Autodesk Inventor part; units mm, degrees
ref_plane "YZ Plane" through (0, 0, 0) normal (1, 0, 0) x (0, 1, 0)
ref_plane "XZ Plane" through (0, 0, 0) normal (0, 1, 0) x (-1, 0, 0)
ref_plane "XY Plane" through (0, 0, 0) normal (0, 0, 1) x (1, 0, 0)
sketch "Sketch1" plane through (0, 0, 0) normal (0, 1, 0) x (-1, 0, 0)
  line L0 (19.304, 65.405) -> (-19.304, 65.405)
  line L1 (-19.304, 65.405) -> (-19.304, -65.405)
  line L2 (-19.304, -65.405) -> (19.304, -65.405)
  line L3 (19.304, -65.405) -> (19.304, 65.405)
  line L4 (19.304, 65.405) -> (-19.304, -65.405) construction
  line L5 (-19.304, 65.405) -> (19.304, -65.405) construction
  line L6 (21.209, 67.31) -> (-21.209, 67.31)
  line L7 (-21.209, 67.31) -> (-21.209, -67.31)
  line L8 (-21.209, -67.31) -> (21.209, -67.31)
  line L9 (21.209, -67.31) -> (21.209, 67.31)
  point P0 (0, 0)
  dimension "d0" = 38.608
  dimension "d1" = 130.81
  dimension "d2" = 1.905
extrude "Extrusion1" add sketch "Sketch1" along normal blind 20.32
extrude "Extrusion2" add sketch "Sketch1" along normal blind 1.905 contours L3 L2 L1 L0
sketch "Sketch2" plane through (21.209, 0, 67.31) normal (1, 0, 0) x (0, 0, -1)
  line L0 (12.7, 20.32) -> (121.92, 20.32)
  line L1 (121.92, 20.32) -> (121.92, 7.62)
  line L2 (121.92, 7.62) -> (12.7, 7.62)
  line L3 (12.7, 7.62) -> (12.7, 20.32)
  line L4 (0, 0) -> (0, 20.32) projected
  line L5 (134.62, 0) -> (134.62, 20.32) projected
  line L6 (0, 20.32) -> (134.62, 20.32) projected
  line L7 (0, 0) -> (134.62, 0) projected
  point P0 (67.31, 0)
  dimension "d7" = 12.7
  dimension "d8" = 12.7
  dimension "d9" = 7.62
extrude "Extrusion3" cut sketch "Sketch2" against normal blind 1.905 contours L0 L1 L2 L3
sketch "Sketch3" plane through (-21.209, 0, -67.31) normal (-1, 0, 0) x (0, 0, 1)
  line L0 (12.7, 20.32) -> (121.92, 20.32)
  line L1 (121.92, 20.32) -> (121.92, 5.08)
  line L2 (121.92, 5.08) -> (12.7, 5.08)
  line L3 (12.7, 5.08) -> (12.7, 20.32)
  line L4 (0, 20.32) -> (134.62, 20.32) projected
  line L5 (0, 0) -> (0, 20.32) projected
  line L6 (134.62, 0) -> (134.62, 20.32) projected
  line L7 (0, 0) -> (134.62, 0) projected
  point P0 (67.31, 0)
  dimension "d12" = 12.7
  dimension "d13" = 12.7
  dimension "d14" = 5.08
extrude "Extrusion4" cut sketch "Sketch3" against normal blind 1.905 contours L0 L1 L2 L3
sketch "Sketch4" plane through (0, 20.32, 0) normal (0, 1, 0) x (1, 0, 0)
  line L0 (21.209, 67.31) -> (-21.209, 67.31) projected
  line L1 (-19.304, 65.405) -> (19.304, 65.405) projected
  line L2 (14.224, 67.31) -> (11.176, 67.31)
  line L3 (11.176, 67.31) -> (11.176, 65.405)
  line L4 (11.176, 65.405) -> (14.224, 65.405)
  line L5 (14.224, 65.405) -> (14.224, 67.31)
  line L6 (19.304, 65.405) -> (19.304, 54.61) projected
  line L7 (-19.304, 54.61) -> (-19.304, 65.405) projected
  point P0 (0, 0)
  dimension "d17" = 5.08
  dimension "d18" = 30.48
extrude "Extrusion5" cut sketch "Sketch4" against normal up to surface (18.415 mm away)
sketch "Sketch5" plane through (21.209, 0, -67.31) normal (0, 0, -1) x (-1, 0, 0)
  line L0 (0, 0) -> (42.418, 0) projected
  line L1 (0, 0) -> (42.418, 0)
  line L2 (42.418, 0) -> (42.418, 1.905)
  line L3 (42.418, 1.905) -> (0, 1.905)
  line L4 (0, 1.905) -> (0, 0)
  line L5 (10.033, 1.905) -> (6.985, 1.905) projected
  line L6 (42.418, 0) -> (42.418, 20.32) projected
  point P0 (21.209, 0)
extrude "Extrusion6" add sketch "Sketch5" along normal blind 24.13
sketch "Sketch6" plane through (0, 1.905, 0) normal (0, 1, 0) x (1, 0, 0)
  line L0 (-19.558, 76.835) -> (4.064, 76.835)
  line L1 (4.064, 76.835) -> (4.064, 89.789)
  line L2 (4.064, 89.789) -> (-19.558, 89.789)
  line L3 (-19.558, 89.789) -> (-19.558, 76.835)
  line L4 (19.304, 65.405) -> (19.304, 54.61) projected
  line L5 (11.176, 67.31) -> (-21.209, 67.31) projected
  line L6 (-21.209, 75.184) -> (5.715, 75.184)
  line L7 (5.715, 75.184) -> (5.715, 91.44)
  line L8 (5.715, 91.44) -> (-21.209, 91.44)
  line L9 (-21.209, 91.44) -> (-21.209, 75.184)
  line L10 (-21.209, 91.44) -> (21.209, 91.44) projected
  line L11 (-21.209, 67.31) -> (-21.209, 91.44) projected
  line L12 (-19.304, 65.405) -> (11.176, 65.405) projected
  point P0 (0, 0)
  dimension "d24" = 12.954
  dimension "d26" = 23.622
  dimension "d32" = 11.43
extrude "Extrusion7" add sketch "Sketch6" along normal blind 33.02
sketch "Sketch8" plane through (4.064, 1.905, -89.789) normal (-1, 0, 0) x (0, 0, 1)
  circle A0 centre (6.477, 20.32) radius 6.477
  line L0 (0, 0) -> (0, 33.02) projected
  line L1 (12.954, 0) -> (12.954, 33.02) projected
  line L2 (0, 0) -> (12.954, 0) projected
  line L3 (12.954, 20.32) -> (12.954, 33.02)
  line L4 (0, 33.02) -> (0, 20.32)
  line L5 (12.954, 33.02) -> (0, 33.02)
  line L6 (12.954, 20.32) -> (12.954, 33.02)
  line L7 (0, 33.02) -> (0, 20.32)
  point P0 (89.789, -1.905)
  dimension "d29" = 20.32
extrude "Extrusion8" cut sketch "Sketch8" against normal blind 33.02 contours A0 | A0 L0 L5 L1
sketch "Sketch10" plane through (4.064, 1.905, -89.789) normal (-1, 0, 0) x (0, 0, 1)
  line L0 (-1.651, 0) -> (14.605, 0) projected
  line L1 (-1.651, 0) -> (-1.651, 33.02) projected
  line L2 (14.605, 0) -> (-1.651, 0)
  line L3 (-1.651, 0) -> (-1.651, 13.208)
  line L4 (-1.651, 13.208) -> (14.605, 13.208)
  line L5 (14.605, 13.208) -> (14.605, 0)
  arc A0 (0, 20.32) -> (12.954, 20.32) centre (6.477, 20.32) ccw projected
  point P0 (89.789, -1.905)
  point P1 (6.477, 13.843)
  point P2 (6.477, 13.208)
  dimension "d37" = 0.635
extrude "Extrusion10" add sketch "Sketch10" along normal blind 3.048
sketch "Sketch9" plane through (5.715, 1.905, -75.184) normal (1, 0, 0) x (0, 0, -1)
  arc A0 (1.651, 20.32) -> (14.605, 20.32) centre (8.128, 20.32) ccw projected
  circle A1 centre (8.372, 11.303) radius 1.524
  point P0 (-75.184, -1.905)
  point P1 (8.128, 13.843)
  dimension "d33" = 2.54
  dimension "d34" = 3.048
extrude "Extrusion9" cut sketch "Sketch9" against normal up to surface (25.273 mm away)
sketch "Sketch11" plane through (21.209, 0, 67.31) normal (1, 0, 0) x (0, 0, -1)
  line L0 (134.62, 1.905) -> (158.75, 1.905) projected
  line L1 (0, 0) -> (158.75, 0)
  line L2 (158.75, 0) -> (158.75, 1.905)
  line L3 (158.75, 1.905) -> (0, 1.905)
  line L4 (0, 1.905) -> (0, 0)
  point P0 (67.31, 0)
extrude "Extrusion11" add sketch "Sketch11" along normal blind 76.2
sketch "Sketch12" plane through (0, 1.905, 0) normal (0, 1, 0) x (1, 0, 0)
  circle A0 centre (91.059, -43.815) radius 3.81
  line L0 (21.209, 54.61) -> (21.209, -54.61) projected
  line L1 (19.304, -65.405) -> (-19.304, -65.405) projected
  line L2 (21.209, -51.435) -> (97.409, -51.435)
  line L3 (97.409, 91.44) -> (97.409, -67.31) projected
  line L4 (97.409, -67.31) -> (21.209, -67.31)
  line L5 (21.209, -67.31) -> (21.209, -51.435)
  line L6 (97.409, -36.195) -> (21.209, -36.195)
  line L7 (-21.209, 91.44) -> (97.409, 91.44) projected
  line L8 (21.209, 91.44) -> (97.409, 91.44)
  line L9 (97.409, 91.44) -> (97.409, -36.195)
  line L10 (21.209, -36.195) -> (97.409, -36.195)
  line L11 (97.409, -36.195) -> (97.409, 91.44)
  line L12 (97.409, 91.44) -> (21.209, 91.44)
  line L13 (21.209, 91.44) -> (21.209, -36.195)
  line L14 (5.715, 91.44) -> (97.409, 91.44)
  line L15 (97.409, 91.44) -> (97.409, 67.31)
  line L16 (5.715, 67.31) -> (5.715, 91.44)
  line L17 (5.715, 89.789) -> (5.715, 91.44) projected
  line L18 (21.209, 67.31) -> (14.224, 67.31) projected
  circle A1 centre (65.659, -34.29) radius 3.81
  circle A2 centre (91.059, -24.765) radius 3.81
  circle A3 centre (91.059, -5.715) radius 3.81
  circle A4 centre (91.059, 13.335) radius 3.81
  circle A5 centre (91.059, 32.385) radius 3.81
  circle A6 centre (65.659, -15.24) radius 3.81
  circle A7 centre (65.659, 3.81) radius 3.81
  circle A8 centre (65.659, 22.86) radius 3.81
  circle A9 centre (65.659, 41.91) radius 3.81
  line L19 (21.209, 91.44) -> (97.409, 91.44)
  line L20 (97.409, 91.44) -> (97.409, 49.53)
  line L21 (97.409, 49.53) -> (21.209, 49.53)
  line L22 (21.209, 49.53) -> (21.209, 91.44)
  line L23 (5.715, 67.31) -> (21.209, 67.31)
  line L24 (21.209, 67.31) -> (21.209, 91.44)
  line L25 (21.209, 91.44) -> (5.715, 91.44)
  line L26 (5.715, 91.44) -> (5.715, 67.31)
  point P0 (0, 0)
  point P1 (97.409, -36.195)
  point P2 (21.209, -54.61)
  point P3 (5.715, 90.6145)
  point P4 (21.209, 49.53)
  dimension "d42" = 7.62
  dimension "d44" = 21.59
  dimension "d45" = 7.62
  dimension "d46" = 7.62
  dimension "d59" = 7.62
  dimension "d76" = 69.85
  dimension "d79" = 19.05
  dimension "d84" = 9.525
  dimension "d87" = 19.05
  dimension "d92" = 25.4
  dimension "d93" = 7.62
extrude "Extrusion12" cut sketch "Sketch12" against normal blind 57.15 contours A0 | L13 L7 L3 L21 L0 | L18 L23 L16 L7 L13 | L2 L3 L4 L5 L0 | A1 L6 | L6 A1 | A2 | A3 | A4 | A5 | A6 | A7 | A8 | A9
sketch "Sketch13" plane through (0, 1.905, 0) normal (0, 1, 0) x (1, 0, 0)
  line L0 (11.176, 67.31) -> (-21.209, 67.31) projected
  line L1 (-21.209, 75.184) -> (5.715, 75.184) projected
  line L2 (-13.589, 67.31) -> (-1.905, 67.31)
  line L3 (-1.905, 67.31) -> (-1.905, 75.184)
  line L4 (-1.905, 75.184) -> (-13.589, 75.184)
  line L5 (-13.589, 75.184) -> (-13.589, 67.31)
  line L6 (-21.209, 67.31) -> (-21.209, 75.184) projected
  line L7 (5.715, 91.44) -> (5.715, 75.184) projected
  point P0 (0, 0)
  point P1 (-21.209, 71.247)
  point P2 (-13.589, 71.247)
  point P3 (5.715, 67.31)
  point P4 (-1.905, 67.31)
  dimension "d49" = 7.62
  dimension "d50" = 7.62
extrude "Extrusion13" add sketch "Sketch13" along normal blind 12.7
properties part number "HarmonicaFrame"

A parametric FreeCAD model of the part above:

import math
import FreeCAD as App
import Part
import Sketcher

V = App.Vector
Q = App.Units.Quantity


def add_polygon(sketch, points):
    """Adds a closed chain of lines whose ends are joined by coincident constraints."""
    first, n = sketch.GeometryCount, len(points)
    for a, b in zip(points, points[1:] + points[:1]):
        sketch.addGeometry(Part.LineSegment(App.Vector(*a, 0), App.Vector(*b, 0)), False)
    for i in range(n):
        sketch.addConstraint(Sketcher.Constraint("Coincident", first + i, 2, first + (i + 1) % n, 1))

doc = App.newDocument("Part")
body = doc.addObject("PartDesign::Body", "Body")

# Sketch on XZ plane
sketch1 = body.newObject("Sketcher::SketchObject", "Sketch")
sketch1.AttachmentSupport = (doc.getObject("XZ_Plane"), [""])
sketch1.MapMode = "FlatFace"
add_polygon(sketch1, [(-21, -67), (-21, 67), (21, 67), (21, -67)])  # lines 0-3
add_polygon(sketch1, [(19, 65), (-19, 65), (-19, -65), (19, -65)])  # lines 4-7
sketch1.addConstraint(Sketcher.Constraint("Vertical", 0))
sketch1.addConstraint(Sketcher.Constraint("Horizontal", 1))
sketch1.addConstraint(Sketcher.Constraint("Vertical", 2))
sketch1.addConstraint(Sketcher.Constraint("Horizontal", 3))
sketch1.addConstraint(Sketcher.Constraint("Horizontal", 4))
sketch1.addConstraint(Sketcher.Constraint("Vertical", 5))
sketch1.addConstraint(Sketcher.Constraint("Horizontal", 6))
sketch1.addConstraint(Sketcher.Constraint("Vertical", 7))
sketch1.addConstraint(Sketcher.Constraint("Symmetric", 0, 2, 2, 2, -1, 1))
sketch1.addConstraint(Sketcher.Constraint("Symmetric", 4, 2, 6, 2, -1, 1))
sketch1.addConstraint(Sketcher.Constraint("DistanceX", 4, 2, 4, 1, Q("1.52 in")))
sketch1.addConstraint(Sketcher.Constraint("DistanceY", 5, 2, 5, 1, Q("5.15 in")))
sketch1.addConstraint(Sketcher.Constraint("DistanceY", 0, 1, 0, 2, Q("5.3 in")))
sketch1.addConstraint(Sketcher.Constraint("DistanceX", 0, 2, 4, 2, Q("0.075 in")))
pad1 = body.newObject("PartDesign::Pad", "Pad")
pad1.Profile = sketch1
pad1.Length = Q("0.8 in")
pad1.Reversed = True

# Sketch on XZ plane
sketch2 = body.newObject("Sketcher::SketchObject", "Sketch001")
sketch2.AttachmentSupport = (doc.getObject("XZ_Plane"), [""])
sketch2.MapMode = "FlatFace"
add_polygon(sketch2, [(-19, -65), (-19, 65), (19, 65), (19, -65)])  # lines 0-3
sketch2.addConstraint(Sketcher.Constraint("Vertical", 0))
sketch2.addConstraint(Sketcher.Constraint("Horizontal", 1))
sketch2.addConstraint(Sketcher.Constraint("Vertical", 2))
sketch2.addConstraint(Sketcher.Constraint("Horizontal", 3))
sketch2.addConstraint(Sketcher.Constraint("Symmetric", 0, 2, 2, 2, -1, 1))
sketch2.addConstraint(Sketcher.Constraint("DistanceX", 1, 1, 1, 2, Q("1.52 in")))
sketch2.addConstraint(Sketcher.Constraint("DistanceY", 0, 1, 0, 2, Q("5.15 in")))
pad2 = body.newObject("PartDesign::Pad", "Pad001")
pad2.Profile = sketch2
pad2.Length = Q("0.075 in")
pad2.Reversed = True

# Sketch on YZ plane
sketch3 = body.newObject("Sketcher::SketchObject", "Sketch002")
sketch3.AttachmentSupport = (doc.getObject("YZ_Plane"), [""])
sketch3.MapMode = "FlatFace"
sketch3.AttachmentOffset = App.Placement(V(0, 0, 0.835 * 25.4), App.Rotation())
add_polygon(sketch3, [(20, -55), (20, 55), (8, 55), (8, -55)])  # lines 0-3
sketch3.addConstraint(Sketcher.Constraint("Vertical", 0))
sketch3.addConstraint(Sketcher.Constraint("Horizontal", 1))
sketch3.addConstraint(Sketcher.Constraint("Vertical", 2))
sketch3.addConstraint(Sketcher.Constraint("Horizontal", 3))
sketch3.addConstraint(Sketcher.Constraint("DistanceX", 1, 2, 1, 1, Q("0.5 in")))
sketch3.addConstraint(Sketcher.Constraint("DistanceX", -1, 1, 1, 2, Q("0.3 in")))
sketch3.addConstraint(Sketcher.Constraint("DistanceY", 0, 1, 0, 2, Q("4.3 in")))
sketch3.addConstraint(Sketcher.Constraint("DistanceY", -1, 1, 0, 2, Q("2.15 in")))
pocket1 = body.newObject("PartDesign::Pocket", "Pocket")
pocket1.Profile = sketch3
pocket1.Length = Q("0.075 in")

# Sketch on YZ plane
sketch4 = body.newObject("Sketcher::SketchObject", "Sketch003")
sketch4.AttachmentSupport = (doc.getObject("YZ_Plane"), [""])
sketch4.MapMode = "FlatFace"
sketch4.AttachmentOffset = App.Placement(V(0, 0, -0.835 * 25.4), App.Rotation())
add_polygon(sketch4, [(20, 55), (20, -55), (5, -55), (5, 55)])  # lines 0-3
sketch4.addConstraint(Sketcher.Constraint("Vertical", 0))
sketch4.addConstraint(Sketcher.Constraint("Horizontal", 1))
sketch4.addConstraint(Sketcher.Constraint("Vertical", 2))
sketch4.addConstraint(Sketcher.Constraint("Horizontal", 3))
sketch4.addConstraint(Sketcher.Constraint("DistanceX", -1, 1, 1, 2, Q("0.2 in")))
sketch4.addConstraint(Sketcher.Constraint("DistanceX", 1, 2, 1, 1, Q("0.6 in")))
sketch4.addConstraint(Sketcher.Constraint("DistanceY", 0, 2, 0, 1, Q("4.3 in")))
sketch4.addConstraint(Sketcher.Constraint("DistanceY", 0, 2, -1, 1, Q("2.15 in")))
pocket2 = body.newObject("PartDesign::Pocket", "Pocket001")
pocket2.Profile = sketch4
pocket2.Length = Q("0.075 in")
pocket2.Reversed = True

# Sketch on XZ plane
sketch5 = body.newObject("Sketcher::SketchObject", "Sketch004")
sketch5.AttachmentSupport = (doc.getObject("XZ_Plane"), [""])
sketch5.MapMode = "FlatFace"
sketch5.AttachmentOffset = App.Placement(V(0, 0, -0.8 * 25.4), App.Rotation())
add_polygon(sketch5, [(14.2, -65.4), (14.2, -67.3), (11.2, -67.3), (11.2, -65.4)])  # lines 0-3
sketch5.addConstraint(Sketcher.Constraint("Vertical", 0))
sketch5.addConstraint(Sketcher.Constraint("Horizontal", 1))
sketch5.addConstraint(Sketcher.Constraint("Vertical", 2))
sketch5.addConstraint(Sketcher.Constraint("Horizontal", 3))
sketch5.addConstraint(Sketcher.Constraint("DistanceX", 1, 2, 1, 1, Q("0.12 in")))
sketch5.addConstraint(Sketcher.Constraint("DistanceY", 0, 2, 0, 1, Q("0.075 in")))
sketch5.addConstraint(Sketcher.Constraint("DistanceX", -1, 1, 0, 2, Q("0.56 in")))
sketch5.addConstraint(Sketcher.Constraint("DistanceY", 0, 2, -1, 1, Q("2.65 in")))
pocket3 = body.newObject("PartDesign::Pocket", "Pocket002")
pocket3.Profile = sketch5
pocket3.Length = Q("0.725 in")
pocket3.Reversed = True

# Sketch on XY plane
sketch6 = body.newObject("Sketcher::SketchObject", "Sketch005")
sketch6.AttachmentSupport = (doc.getObject("XY_Plane"), [""])
sketch6.MapMode = "FlatFace"
sketch6.AttachmentOffset = App.Placement(V(0, 0, -2.65 * 25.4), App.Rotation())
add_polygon(sketch6, [(21.2, 1.9), (21.2, 0), (-21.2, 0), (-21.2, 1.9)])  # lines 0-3
sketch6.addConstraint(Sketcher.Constraint("Vertical", 0))
sketch6.addConstraint(Sketcher.Constraint("Horizontal", 1))
sketch6.addConstraint(Sketcher.Constraint("Vertical", 2))
sketch6.addConstraint(Sketcher.Constraint("Horizontal", 3))
sketch6.addConstraint(Sketcher.Constraint("Symmetric", 0, 2, 1, 2, -1, 1))
sketch6.addConstraint(Sketcher.Constraint("DistanceX", 1, 2, 1, 1, Q("1.67 in")))
sketch6.addConstraint(Sketcher.Constraint("DistanceY", 0, 2, 0, 1, Q("0.075 in")))
pad3 = body.newObject("PartDesign::Pad", "Pad002")
pad3.Profile = sketch6
pad3.Length = Q("0.95 in")
pad3.Reversed = True

# Sketch on XZ plane
sketch7 = body.newObject("Sketcher::SketchObject", "Sketch006")
sketch7.AttachmentSupport = (doc.getObject("XZ_Plane"), [""])
sketch7.MapMode = "FlatFace"
sketch7.AttachmentOffset = App.Placement(V(0, 0, -0.075 * 25.4), App.Rotation())
add_polygon(sketch7, [(-21, -91), (-21, -75), (6, -75), (6, -91)])  # lines 0-3
add_polygon(sketch7, [(4, -77), (-20, -77), (-20, -90), (4, -90)])  # lines 4-7
sketch7.addConstraint(Sketcher.Constraint("Vertical", 0))
sketch7.addConstraint(Sketcher.Constraint("Horizontal", 1))
sketch7.addConstraint(Sketcher.Constraint("Vertical", 2))
sketch7.addConstraint(Sketcher.Constraint("Horizontal", 3))
sketch7.addConstraint(Sketcher.Constraint("Horizontal", 4))
sketch7.addConstraint(Sketcher.Constraint("Vertical", 5))
sketch7.addConstraint(Sketcher.Constraint("Horizontal", 6))
sketch7.addConstraint(Sketcher.Constraint("Vertical", 7))
sketch7.addConstraint(Sketcher.Constraint("DistanceX", 4, 2, 4, 1, Q("0.93 in")))
sketch7.addConstraint(Sketcher.Constraint("DistanceY", 5, 2, 5, 1, Q("0.51 in")))
sketch7.addConstraint(Sketcher.Constraint("DistanceX", 1, 1, 1, 2, Q("1.06 in")))
sketch7.addConstraint(Sketcher.Constraint("DistanceY", 0, 1, 0, 2, Q("0.64 in")))
sketch7.addConstraint(Sketcher.Constraint("DistanceY", 2, 2, -1, 1, Q("3.6 in")))
sketch7.addConstraint(Sketcher.Constraint("DistanceX", 4, 2, -1, 1, Q("0.77 in")))
sketch7.addConstraint(Sketcher.Constraint("DistanceX", 0, 2, -1, 1, Q("0.835 in")))
sketch7.addConstraint(Sketcher.Constraint("DistanceY", 4, 2, -1, 1, Q("3.025 in")))
pad4 = body.newObject("PartDesign::Pad", "Pad003")
pad4.Profile = sketch7
pad4.Length = Q("1.3 in")
pad4.Reversed = True

# Sketch on YZ plane
sketch8 = body.newObject("Sketcher::SketchObject", "Sketch007")
sketch8.AttachmentSupport = (doc.getObject("YZ_Plane"), [""])
sketch8.MapMode = "FlatFace"
sketch8.AttachmentOffset = App.Placement(V(0, 0, 0.16 * 25.4), App.Rotation())
sketch8.addGeometry(Part.ArcOfCircle(Part.Circle(V(22, -83, 0), V(0, 0, 1), 6), math.radians(90), math.radians(270)), False)
sketch8.addGeometry(Part.LineSegment(V(22, -77, 0), V(35, -77, 0)), False)
sketch8.addGeometry(Part.LineSegment(V(35, -77, 0), V(35, -90, 0)), False)
sketch8.addGeometry(Part.LineSegment(V(35, -90, 0), V(22, -90, 0)), False)
sketch8.addConstraint(Sketcher.Constraint("Tangent", 0, 1, 1, 1))
sketch8.addConstraint(Sketcher.Constraint("Coincident", 1, 2, 2, 1))
sketch8.addConstraint(Sketcher.Constraint("Coincident", 2, 2, 3, 1))
sketch8.addConstraint(Sketcher.Constraint("Tangent", 3, 2, 0, 2))
sketch8.addConstraint(Sketcher.Constraint("Horizontal", 1))
sketch8.addConstraint(Sketcher.Constraint("Vertical", 2))
sketch8.addConstraint(Sketcher.Constraint("Horizontal", 3))
sketch8.addConstraint(Sketcher.Constraint("DistanceX", 1, 1, 1, 2, Q("0.5 in")))
sketch8.addConstraint(Sketcher.Constraint("Radius", 0, Q("0.255 in")))
sketch8.addConstraint(Sketcher.Constraint("DistanceY", 0, 3, -1, 1, Q("3.28 in")))
sketch8.addConstraint(Sketcher.Constraint("DistanceX", -1, 1, 0, 3, Q("0.875 in")))
pocket4 = body.newObject("PartDesign::Pocket", "Pocket003")
pocket4.Profile = sketch8
pocket4.Length = Q("1.3 in")
pocket4.Reversed = True

# Sketch on YZ plane
sketch9 = body.newObject("Sketcher::SketchObject", "Sketch008")
sketch9.AttachmentSupport = (doc.getObject("YZ_Plane"), [""])
sketch9.MapMode = "FlatFace"
sketch9.AttachmentOffset = App.Placement(V(0, 0, 0.16 * 25.4), App.Rotation())
add_polygon(sketch9, [(15, -91), (2, -91), (2, -75), (15, -75)])  # lines 0-3
sketch9.addConstraint(Sketcher.Constraint("Horizontal", 0))
sketch9.addConstraint(Sketcher.Constraint("Vertical", 1))
sketch9.addConstraint(Sketcher.Constraint("Horizontal", 2))
sketch9.addConstraint(Sketcher.Constraint("Vertical", 3))
sketch9.addConstraint(Sketcher.Constraint("DistanceX", 0, 2, 0, 1, Q("0.52 in")))
sketch9.addConstraint(Sketcher.Constraint("DistanceY", 1, 1, 1, 2, Q("0.64 in")))
sketch9.addConstraint(Sketcher.Constraint("DistanceY", 0, 2, -1, 1, Q("3.6 in")))
sketch9.addConstraint(Sketcher.Constraint("DistanceX", -1, 1, 0, 2, Q("0.075 in")))
pad5 = body.newObject("PartDesign::Pad", "Pad004")
pad5.Profile = sketch9
pad5.Length = Q("0.12 in")
pad5.Reversed = True

# Sketch on YZ plane
sketch10 = body.newObject("Sketcher::SketchObject", "Sketch009")
sketch10.AttachmentSupport = (doc.getObject("YZ_Plane"), [""])
sketch10.MapMode = "FlatFace"
sketch10.AttachmentOffset = App.Placement(V(0, 0, 0.225 * 25.4), App.Rotation())
sketch10.addGeometry(Part.Circle(V(13.2, -83.6, 0), V(0, 0, 1), 1.5), False)
sketch10.addConstraint(Sketcher.Constraint("Diameter", 0, Q("0.12 in")))
sketch10.addConstraint(Sketcher.Constraint("DistanceX", -1, 1, 0, 3, Q("0.52 in")))
sketch10.addConstraint(Sketcher.Constraint("DistanceY", 0, 3, -1, 1, Q("3.2896 in")))
pocket5 = body.newObject("PartDesign::Pocket", "Pocket004")
pocket5.Profile = sketch10
pocket5.Length = Q("0.995 in")

# Sketch on YZ plane
sketch11 = body.newObject("Sketcher::SketchObject", "Sketch010")
sketch11.AttachmentSupport = (doc.getObject("YZ_Plane"), [""])
sketch11.MapMode = "FlatFace"
sketch11.AttachmentOffset = App.Placement(V(0, 0, 0.835 * 25.4), App.Rotation())
add_polygon(sketch11, [(1.9, -91.4), (1.9, 67.3), (0, 67.3), (0, -91.4)])  # lines 0-3
sketch11.addConstraint(Sketcher.Constraint("Vertical", 0))
sketch11.addConstraint(Sketcher.Constraint("Horizontal", 1))
sketch11.addConstraint(Sketcher.Constraint("Vertical", 2))
sketch11.addConstraint(Sketcher.Constraint("Horizontal", 3))
sketch11.addConstraint(Sketcher.Constraint("PointOnObject", 1, 2, -2))
sketch11.addConstraint(Sketcher.Constraint("DistanceY", 0, 1, 0, 2, Q("6.25 in")))
sketch11.addConstraint(Sketcher.Constraint("DistanceY", 2, 2, -1, 1, Q("3.6 in")))
sketch11.addConstraint(Sketcher.Constraint("DistanceX", 1, 2, 1, 1, Q("0.075 in")))
pad6 = body.newObject("PartDesign::Pad", "Pad005")
pad6.Profile = sketch11
pad6.Length = Q("3 in")

# Sketch on XZ plane
sketch12 = body.newObject("Sketcher::SketchObject", "Sketch011")
sketch12.AttachmentSupport = (doc.getObject("XZ_Plane"), [""])
sketch12.MapMode = "FlatFace"
sketch12.AttachmentOffset = App.Placement(V(0, 0, -0.075 * 25.4), App.Rotation())
sketch12.addGeometry(Part.Circle(V(91.1, 43.8, 0), V(0, 0, 1), 3.8), False)  # 0
add_polygon(sketch12, [(21.2, -67.3), (21.2, -49.5), (97.4, -49.5), (97.4, -91.4), (5.7, -91.4), (5.7, -67.3)])  # lines 1-6
add_polygon(sketch12, [(97.4, 51.4), (21.2, 51.4), (21.2, 67.3), (97.4, 67.3)])  # lines 7-10
sketch12.addGeometry(Part.Circle(V(65.7, 34.3, 0), V(0, 0, 1), 3.8), False)  # 11
sketch12.addGeometry(Part.Circle(V(91.1, 24.8, 0), V(0, 0, 1), 3.8), False)  # 12
sketch12.addGeometry(Part.Circle(V(91.1, 5.7, 0), V(0, 0, 1), 3.8), False)  # 13
sketch12.addGeometry(Part.Circle(V(91.1, -13.3, 0), V(0, 0, 1), 3.8), False)  # 14
sketch12.addGeometry(Part.Circle(V(91.1, -32.4, 0), V(0, 0, 1), 3.8), False)  # 15
sketch12.addGeometry(Part.Circle(V(65.7, 15.2, 0), V(0, 0, 1), 3.8), False)  # 16
sketch12.addGeometry(Part.Circle(V(65.7, -3.8, 0), V(0, 0, 1), 3.8), False)  # 17
sketch12.addGeometry(Part.Circle(V(65.7, -22.9, 0), V(0, 0, 1), 3.8), False)  # 18
sketch12.addGeometry(Part.Circle(V(65.7, -41.9, 0), V(0, 0, 1), 3.8), False)  # 19
sketch12.addConstraint(Sketcher.Constraint("Vertical", 1))
sketch12.addConstraint(Sketcher.Constraint("Horizontal", 2))
sketch12.addConstraint(Sketcher.Constraint("Vertical", 3))
sketch12.addConstraint(Sketcher.Constraint("Horizontal", 4))
sketch12.addConstraint(Sketcher.Constraint("Vertical", 5))
sketch12.addConstraint(Sketcher.Constraint("Horizontal", 6))
sketch12.addConstraint(Sketcher.Constraint("Horizontal", 7))
sketch12.addConstraint(Sketcher.Constraint("Vertical", 8))
sketch12.addConstraint(Sketcher.Constraint("Horizontal", 9))
sketch12.addConstraint(Sketcher.Constraint("Vertical", 10))
sketch12.addConstraint(Sketcher.Constraint("Equal", 0, 11))
sketch12.addConstraint(Sketcher.Constraint("Equal", 11, 12))
sketch12.addConstraint(Sketcher.Constraint("Equal", 12, 13))
sketch12.addConstraint(Sketcher.Constraint("Equal", 13, 14))
sketch12.addConstraint(Sketcher.Constraint("Equal", 14, 15))
sketch12.addConstraint(Sketcher.Constraint("Equal", 15, 16))
sketch12.addConstraint(Sketcher.Constraint("Equal", 16, 17))
sketch12.addConstraint(Sketcher.Constraint("Equal", 17, 18))
sketch12.addConstraint(Sketcher.Constraint("Equal", 18, 19))
sketch12.addConstraint(Sketcher.Constraint("Symmetric", 6, 2, 8, 2, -1))
sketch12.addConstraint(Sketcher.Constraint("Vertical", 0, 3, 12, 3))
sketch12.addConstraint(Sketcher.Constraint("Vertical", 12, 3, 13, 3))
sketch12.addConstraint(Sketcher.Constraint("Vertical", 13, 3, 14, 3))
sketch12.addConstraint(Sketcher.Constraint("Vertical", 14, 3, 15, 3))
sketch12.addConstraint(Sketcher.Constraint("Vertical", 11, 3, 16, 3))
sketch12.addConstraint(Sketcher.Constraint("Vertical", 16, 3, 17, 3))
sketch12.addConstraint(Sketcher.Constraint("Vertical", 17, 3, 18, 3))
sketch12.addConstraint(Sketcher.Constraint("Vertical", 18, 3, 19, 3))
sketch12.addConstraint(Sketcher.Constraint("Vertical", 3, 2, 9, 2))
sketch12.addConstraint(Sketcher.Constraint("Diameter", 0, Q("0.3 in")))
sketch12.addConstraint(Sketcher.Constraint("DistanceX", 11, 3, 0, 3, Q("1 in")))
sketch12.addConstraint(Sketcher.Constraint("DistanceY", 5, 2, 19, 3, Q("1 in")))
sketch12.addConstraint(Sketcher.Constraint("DistanceY", 1, 2, 19, 3, Q("0.3 in")))
sketch12.addConstraint(Sketcher.Constraint("DistanceY", 0, 3, 7, 2, Q("0.3 in")))
sketch12.addConstraint(Sketcher.Constraint("DistanceX", 2, 1, 2, 2, Q("3 in")))
sketch12.addConstraint(Sketcher.Constraint("DistanceY", 12, 3, 0, 3, Q("0.75 in")))
sketch12.addConstraint(Sketcher.Constraint("DistanceY", 13, 3, 12, 3, Q("0.75 in")))
sketch12.addConstraint(Sketcher.Constraint("DistanceY", 14, 3, 13, 3, Q("0.75 in")))
sketch12.addConstraint(Sketcher.Constraint("DistanceY", 15, 3, 14, 3, Q("0.75 in")))
sketch12.addConstraint(Sketcher.Constraint("DistanceY", 16, 3, 11, 3, Q("0.75 in")))
sketch12.addConstraint(Sketcher.Constraint("DistanceY", 17, 3, 16, 3, Q("0.75 in")))
sketch12.addConstraint(Sketcher.Constraint("DistanceY", 18, 3, 17, 3, Q("0.75 in")))
sketch12.addConstraint(Sketcher.Constraint("DistanceY", 19, 3, 18, 3, Q("0.75 in")))
sketch12.addConstraint(Sketcher.Constraint("DistanceX", 1, 2, 15, 3, Q("2.75 in")))
sketch12.addConstraint(Sketcher.Constraint("DistanceY", 11, 3, 0, 3, Q("0.375 in")))
sketch12.addConstraint(Sketcher.Constraint("DistanceX", 4, 2, 4, 1, Q("3.61 in")))
sketch12.addConstraint(Sketcher.Constraint("DistanceY", 3, 2, 3, 1, Q("1.65 in")))
sketch12.addConstraint(Sketcher.Constraint("DistanceY", -1, 1, 16, 3, Q("0.6 in")))
sketch12.addConstraint(Sketcher.Constraint("DistanceX", -1, 1, 0, 3, Q("3.585 in")))
pocket6 = body.newObject("PartDesign::Pocket", "Pocket005")
pocket6.Profile = sketch12
pocket6.Length = Q("2.25 in")
pocket6.Reversed = True

# Sketch on XZ plane
sketch13 = body.newObject("Sketcher::SketchObject", "Sketch012")
sketch13.AttachmentSupport = (doc.getObject("XZ_Plane"), [""])
sketch13.MapMode = "FlatFace"
sketch13.AttachmentOffset = App.Placement(V(0, 0, -0.075 * 25.4), App.Rotation())
add_polygon(sketch13, [(-2, -67), (-2, -75), (-21, -75), (-21, -67)])  # lines 0-3
sketch13.addConstraint(Sketcher.Constraint("Vertical", 0))
sketch13.addConstraint(Sketcher.Constraint("Horizontal", 1))
sketch13.addConstraint(Sketcher.Constraint("Vertical", 2))
sketch13.addConstraint(Sketcher.Constraint("Horizontal", 3))
sketch13.addConstraint(Sketcher.Constraint("DistanceX", 1, 2, 1, 1, Q("0.76 in")))
sketch13.addConstraint(Sketcher.Constraint("DistanceY", 0, 2, 0, 1, Q("0.31 in")))
sketch13.addConstraint(Sketcher.Constraint("DistanceY", 0, 2, -1, 1, Q("2.96 in")))
sketch13.addConstraint(Sketcher.Constraint("DistanceX", 0, 2, -1, 1, Q("0.075 in")))
pad7 = body.newObject("PartDesign::Pad", "Pad006")
pad7.Profile = sketch13
pad7.Length = Q("0.5 in")
pad7.Reversed = True

doc.recompute()
